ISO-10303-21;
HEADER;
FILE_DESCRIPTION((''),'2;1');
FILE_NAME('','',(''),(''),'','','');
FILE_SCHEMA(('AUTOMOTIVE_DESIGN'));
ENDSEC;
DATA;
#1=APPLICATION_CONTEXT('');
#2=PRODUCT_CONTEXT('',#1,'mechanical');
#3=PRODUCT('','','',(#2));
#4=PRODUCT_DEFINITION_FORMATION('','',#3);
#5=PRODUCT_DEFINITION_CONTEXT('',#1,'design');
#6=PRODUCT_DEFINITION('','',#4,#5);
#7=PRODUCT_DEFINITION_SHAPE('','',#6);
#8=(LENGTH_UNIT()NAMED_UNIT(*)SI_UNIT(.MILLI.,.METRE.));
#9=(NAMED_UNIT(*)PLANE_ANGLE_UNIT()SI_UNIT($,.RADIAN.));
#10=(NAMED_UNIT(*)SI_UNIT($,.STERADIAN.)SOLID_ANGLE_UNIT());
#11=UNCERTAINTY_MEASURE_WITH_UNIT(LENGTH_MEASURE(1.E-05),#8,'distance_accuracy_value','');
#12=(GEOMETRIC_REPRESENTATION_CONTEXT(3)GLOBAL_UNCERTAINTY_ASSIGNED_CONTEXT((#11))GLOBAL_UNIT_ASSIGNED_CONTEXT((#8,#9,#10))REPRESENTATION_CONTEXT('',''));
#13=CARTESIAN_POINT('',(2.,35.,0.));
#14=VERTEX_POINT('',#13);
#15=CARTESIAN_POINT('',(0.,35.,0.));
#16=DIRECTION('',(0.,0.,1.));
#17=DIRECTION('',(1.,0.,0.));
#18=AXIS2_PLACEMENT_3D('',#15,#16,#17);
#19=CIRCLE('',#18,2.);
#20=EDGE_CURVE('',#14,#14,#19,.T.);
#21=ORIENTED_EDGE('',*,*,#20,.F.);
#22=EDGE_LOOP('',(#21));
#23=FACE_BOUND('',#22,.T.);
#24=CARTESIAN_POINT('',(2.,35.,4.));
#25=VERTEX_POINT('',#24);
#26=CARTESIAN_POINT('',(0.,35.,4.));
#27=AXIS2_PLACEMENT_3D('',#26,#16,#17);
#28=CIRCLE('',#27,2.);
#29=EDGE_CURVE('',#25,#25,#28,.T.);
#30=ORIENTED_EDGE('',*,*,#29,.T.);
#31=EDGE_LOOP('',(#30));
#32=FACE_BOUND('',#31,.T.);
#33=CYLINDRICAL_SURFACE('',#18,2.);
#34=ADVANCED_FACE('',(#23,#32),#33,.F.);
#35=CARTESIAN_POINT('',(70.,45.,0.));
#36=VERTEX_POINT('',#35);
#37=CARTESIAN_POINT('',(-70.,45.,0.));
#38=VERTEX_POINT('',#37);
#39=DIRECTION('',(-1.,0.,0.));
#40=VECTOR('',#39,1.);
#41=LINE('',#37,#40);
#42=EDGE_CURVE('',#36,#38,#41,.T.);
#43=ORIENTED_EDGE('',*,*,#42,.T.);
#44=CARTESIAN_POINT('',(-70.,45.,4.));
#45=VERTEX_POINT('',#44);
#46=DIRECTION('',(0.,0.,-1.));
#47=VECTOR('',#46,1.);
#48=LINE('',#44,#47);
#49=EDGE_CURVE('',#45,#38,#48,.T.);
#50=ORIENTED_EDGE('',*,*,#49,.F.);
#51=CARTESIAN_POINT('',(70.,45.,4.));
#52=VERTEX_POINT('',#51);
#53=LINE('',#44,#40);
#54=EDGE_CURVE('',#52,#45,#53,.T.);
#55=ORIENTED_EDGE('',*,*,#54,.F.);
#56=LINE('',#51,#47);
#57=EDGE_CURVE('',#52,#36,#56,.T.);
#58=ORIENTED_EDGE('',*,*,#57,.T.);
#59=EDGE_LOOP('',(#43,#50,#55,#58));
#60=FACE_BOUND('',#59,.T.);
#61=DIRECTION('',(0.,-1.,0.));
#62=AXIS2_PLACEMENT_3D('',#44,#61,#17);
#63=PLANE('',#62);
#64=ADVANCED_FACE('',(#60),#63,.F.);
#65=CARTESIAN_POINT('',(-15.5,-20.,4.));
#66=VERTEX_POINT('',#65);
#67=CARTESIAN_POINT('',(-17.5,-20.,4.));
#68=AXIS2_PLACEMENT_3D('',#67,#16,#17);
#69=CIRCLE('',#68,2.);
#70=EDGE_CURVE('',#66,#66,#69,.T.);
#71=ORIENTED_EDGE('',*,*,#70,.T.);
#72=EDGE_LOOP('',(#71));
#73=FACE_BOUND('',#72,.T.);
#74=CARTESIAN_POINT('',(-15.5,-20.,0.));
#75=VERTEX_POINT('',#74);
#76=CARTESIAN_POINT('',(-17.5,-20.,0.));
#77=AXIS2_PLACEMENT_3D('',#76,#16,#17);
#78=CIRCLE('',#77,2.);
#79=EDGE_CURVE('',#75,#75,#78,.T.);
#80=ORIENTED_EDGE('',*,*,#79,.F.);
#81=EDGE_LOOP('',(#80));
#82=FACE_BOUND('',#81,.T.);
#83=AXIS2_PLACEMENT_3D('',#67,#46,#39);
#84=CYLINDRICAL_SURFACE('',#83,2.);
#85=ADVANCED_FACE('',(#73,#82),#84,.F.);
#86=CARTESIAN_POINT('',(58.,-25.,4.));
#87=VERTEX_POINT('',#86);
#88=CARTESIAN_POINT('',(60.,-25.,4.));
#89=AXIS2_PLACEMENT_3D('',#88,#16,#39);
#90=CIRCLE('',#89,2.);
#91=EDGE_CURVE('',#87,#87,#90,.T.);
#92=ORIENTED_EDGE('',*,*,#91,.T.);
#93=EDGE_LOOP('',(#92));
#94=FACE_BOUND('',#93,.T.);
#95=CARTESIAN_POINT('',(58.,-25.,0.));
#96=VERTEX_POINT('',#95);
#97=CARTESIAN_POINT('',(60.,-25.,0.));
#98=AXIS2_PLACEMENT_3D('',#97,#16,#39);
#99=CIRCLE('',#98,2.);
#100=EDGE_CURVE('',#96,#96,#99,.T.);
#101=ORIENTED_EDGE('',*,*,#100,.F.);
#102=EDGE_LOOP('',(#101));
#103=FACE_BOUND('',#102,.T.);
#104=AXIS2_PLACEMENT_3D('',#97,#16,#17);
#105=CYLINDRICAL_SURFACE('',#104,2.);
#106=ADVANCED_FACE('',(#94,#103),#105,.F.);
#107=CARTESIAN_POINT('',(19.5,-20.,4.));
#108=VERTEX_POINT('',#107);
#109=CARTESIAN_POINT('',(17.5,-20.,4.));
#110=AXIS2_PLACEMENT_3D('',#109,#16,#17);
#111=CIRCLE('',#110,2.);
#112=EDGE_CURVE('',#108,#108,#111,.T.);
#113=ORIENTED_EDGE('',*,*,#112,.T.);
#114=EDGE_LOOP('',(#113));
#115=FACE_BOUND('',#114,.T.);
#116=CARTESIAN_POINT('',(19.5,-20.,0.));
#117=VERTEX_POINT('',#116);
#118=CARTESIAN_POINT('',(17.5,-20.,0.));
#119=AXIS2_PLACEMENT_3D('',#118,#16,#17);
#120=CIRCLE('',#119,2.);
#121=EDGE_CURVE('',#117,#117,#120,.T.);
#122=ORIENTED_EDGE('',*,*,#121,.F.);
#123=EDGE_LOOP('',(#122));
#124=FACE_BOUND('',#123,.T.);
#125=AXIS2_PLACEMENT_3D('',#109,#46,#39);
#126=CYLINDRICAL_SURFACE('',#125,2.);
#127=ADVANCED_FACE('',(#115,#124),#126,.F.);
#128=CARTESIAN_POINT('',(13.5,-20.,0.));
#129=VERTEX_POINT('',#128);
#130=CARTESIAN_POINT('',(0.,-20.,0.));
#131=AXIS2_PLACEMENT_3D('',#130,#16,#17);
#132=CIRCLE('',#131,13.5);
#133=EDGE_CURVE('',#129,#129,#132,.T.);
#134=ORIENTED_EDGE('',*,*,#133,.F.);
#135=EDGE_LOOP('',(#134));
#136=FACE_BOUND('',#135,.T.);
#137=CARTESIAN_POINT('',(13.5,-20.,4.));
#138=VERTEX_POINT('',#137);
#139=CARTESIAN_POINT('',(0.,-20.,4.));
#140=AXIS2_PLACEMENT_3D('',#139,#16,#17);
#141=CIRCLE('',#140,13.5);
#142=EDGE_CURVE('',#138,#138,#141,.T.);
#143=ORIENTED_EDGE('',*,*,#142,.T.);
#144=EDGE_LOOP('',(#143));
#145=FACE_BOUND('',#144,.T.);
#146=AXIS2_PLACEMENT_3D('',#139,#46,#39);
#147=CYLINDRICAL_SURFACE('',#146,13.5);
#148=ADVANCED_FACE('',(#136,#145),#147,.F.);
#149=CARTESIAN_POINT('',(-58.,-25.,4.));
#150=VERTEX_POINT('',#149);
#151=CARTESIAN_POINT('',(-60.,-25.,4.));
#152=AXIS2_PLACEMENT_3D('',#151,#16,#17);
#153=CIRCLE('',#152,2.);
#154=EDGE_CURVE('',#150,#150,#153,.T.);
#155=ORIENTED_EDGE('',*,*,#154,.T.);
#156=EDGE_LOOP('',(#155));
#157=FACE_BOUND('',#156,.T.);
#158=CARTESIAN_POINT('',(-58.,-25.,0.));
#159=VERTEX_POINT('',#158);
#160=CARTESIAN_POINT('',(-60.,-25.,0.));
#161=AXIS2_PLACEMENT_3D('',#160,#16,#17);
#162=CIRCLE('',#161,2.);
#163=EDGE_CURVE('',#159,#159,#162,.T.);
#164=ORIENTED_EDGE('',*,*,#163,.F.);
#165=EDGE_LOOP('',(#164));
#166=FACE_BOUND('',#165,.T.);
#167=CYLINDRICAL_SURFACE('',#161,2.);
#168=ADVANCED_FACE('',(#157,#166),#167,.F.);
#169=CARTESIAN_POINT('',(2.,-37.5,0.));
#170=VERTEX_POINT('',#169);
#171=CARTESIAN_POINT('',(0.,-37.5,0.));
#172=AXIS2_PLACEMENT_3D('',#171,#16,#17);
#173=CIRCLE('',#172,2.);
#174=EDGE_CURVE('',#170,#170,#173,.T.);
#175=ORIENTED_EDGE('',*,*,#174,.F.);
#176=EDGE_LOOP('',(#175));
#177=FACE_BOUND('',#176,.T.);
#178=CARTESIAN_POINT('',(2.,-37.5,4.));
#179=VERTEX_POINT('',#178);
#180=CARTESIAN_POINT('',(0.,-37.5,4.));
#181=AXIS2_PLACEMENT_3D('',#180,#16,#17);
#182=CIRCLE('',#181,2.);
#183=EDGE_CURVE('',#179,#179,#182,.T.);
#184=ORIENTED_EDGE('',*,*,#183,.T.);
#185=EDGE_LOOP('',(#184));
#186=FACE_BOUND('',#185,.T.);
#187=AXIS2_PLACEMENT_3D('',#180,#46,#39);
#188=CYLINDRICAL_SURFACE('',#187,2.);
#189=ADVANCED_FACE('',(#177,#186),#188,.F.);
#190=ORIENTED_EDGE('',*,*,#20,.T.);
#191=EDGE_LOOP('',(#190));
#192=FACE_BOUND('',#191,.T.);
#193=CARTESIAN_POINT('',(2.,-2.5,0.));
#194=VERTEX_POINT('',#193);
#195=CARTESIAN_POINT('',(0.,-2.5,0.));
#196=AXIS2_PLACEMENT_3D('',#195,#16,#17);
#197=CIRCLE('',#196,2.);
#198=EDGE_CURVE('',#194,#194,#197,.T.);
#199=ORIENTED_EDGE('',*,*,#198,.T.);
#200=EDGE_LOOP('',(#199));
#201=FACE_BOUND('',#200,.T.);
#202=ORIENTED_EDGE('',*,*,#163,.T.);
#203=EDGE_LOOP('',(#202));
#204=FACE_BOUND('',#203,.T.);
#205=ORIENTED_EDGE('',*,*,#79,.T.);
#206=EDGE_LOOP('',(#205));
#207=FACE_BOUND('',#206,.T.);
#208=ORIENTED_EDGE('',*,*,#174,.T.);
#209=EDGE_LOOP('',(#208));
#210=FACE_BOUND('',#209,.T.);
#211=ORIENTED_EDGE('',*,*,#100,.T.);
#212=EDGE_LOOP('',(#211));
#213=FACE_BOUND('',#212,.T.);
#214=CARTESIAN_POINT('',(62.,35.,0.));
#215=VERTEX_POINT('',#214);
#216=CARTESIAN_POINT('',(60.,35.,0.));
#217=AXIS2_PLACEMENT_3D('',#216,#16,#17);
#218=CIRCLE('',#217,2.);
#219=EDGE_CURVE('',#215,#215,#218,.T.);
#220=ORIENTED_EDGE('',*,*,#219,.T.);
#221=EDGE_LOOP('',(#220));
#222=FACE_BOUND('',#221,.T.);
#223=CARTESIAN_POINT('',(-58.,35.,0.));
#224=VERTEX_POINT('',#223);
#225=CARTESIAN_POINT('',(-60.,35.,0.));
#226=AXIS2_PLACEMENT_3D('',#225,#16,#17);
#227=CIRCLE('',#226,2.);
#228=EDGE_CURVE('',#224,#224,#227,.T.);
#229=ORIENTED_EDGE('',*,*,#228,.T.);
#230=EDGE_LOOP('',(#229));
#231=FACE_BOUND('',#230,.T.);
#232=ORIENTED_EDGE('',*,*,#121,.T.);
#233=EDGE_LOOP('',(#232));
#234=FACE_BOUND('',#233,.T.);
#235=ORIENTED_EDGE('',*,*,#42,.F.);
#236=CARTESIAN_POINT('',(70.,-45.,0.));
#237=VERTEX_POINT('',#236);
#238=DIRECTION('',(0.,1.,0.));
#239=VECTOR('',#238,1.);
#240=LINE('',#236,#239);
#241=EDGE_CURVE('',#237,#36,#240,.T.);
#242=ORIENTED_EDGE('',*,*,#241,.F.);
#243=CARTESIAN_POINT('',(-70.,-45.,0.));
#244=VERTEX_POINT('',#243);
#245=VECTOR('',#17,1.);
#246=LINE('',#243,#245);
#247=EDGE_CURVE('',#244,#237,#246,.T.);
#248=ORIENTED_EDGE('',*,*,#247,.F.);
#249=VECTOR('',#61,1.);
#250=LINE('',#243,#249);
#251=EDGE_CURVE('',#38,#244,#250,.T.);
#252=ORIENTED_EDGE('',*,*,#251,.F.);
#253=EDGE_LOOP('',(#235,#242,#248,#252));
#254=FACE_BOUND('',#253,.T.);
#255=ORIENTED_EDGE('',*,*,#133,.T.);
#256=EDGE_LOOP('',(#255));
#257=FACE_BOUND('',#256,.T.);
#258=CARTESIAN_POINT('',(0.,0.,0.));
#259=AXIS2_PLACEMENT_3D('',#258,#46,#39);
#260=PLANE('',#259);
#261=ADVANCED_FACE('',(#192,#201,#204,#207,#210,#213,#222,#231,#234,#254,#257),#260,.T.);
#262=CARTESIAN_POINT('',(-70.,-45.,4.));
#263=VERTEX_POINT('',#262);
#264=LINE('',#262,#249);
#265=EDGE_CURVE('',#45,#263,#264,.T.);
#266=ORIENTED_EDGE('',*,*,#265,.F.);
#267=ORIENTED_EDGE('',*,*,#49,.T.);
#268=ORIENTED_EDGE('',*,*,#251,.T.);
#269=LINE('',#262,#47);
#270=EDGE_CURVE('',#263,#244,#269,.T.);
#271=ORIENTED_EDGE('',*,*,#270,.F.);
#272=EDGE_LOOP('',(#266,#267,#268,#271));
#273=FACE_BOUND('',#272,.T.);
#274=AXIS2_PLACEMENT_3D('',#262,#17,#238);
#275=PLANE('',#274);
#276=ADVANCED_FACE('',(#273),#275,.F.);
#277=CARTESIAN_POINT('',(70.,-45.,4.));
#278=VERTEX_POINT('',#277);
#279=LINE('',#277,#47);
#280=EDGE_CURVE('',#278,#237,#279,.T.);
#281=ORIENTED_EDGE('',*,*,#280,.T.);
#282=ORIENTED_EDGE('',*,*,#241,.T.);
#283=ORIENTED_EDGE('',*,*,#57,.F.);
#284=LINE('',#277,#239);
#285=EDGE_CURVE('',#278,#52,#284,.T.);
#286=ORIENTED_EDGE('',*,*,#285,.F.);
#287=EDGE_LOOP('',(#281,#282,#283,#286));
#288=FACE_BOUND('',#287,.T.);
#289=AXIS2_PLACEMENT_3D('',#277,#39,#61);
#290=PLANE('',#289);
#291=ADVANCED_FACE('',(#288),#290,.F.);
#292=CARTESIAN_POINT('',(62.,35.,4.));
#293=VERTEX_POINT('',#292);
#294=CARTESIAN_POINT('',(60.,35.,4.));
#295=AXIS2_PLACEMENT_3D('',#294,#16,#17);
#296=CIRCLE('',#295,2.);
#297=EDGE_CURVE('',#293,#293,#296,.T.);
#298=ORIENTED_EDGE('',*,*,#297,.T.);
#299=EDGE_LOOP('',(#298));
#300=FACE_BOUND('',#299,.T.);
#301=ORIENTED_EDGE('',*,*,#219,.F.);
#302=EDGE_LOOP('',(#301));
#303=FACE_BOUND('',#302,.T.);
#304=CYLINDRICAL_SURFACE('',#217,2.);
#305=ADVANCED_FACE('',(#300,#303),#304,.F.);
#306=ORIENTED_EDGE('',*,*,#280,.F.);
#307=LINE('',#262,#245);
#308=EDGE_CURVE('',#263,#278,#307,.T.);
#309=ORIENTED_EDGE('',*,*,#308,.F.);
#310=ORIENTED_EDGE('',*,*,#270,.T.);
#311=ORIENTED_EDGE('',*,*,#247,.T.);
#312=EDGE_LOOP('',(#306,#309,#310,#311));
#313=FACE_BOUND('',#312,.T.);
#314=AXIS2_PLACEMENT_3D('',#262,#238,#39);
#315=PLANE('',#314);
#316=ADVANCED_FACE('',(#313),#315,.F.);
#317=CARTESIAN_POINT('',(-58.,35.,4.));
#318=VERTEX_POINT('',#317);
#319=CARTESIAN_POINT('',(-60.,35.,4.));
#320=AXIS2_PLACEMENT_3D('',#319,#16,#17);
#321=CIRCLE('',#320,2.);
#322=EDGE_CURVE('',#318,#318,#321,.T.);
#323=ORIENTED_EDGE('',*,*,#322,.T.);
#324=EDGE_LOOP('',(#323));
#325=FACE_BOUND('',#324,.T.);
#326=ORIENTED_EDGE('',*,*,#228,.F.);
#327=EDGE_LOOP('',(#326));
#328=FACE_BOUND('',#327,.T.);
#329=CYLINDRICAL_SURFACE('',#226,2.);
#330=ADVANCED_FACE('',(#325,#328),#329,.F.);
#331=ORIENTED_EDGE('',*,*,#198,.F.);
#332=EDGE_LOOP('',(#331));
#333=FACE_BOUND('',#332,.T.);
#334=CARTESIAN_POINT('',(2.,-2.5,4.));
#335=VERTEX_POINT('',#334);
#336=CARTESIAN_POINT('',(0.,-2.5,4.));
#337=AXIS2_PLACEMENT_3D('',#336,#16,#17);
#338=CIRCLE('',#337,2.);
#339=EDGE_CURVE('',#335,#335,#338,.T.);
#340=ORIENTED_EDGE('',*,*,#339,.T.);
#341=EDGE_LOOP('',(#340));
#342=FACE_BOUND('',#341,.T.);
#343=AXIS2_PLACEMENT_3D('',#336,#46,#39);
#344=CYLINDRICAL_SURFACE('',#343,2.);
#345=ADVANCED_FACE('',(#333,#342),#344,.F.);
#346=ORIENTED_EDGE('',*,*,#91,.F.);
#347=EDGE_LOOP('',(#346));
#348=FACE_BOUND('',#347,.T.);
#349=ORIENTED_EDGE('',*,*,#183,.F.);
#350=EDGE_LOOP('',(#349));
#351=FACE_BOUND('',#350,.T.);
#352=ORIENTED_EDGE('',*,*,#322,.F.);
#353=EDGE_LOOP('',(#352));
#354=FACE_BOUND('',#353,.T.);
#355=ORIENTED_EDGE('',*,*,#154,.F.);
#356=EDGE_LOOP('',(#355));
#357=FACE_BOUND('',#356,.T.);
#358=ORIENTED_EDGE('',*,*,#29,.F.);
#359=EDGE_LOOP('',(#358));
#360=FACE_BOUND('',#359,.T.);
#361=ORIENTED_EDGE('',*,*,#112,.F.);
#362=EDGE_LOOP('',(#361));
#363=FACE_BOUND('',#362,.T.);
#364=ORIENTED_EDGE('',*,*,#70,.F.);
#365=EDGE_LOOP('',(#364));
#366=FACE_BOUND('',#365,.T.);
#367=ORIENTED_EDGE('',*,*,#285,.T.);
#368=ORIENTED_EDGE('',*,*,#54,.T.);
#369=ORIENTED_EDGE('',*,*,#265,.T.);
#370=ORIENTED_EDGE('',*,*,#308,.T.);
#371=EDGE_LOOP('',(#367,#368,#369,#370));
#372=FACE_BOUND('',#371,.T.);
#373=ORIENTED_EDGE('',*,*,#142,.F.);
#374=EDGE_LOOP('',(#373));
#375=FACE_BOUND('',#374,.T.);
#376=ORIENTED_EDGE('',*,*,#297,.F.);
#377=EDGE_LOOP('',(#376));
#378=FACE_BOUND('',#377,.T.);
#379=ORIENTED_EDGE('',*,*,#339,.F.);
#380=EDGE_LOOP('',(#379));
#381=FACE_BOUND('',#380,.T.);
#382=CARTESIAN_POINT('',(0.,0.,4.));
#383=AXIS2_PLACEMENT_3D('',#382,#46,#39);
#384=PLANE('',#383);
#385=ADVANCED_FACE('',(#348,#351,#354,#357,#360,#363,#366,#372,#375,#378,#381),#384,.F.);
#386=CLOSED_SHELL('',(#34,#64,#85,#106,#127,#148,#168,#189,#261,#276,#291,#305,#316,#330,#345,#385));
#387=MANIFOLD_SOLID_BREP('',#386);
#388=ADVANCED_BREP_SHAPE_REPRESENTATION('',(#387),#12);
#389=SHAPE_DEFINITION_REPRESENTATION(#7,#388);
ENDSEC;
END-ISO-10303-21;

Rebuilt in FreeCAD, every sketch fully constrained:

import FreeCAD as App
import Part
import Sketcher
from FreeCAD import Vector
Q = App.Units.Quantity


def add_polygon(sketch, points):
    """Adds a closed chain of lines whose ends are joined by coincident constraints."""
    first, n = sketch.GeometryCount, len(points)
    for a, b in zip(points, points[1:] + points[:1]):
        sketch.addGeometry(Part.LineSegment(App.Vector(*a, 0), App.Vector(*b, 0)), False)
    for i in range(n):
        sketch.addConstraint(Sketcher.Constraint("Coincident", first + i, 2, first + (i + 1) % n, 1))

doc = App.newDocument("Part")
body = doc.addObject("PartDesign::Body", "Body")

sketch1 = body.newObject("Sketcher::SketchObject", "Sketch")
sketch1.AttachmentSupport = (doc.getObject("XY_Plane"), [""])
sketch1.MapMode = "FlatFace"
add_polygon(sketch1, [(-70, 45), (-70, -45), (70, -45), (70, 45)])
sketch1.addGeometry(Part.Circle(Vector(0, -37.5, 0), Vector(0, 0, 1), 2), False)
sketch1.addGeometry(Part.Circle(Vector(-17.5, -20, 0), Vector(0, 0, 1), 2), False)
sketch1.addGeometry(Part.Circle(Vector(0, -20, 0), Vector(0, 0, 1), 13.5), False)
sketch1.addGeometry(Part.Circle(Vector(17.5, -20, 0), Vector(0, 0, 1), 2), False)
sketch1.addGeometry(Part.Circle(Vector(0, -2.5, 0), Vector(0, 0, 1), 2), False)
sketch1.addConstraint([
    Sketcher.Constraint("Vertical", 0),
    Sketcher.Constraint("Horizontal", 1),
    Sketcher.Constraint("Vertical", 2),
    Sketcher.Constraint("Horizontal", 3),
    Sketcher.Constraint("Equal", 4, 5),
    Sketcher.Constraint("Equal", 5, 7),
    Sketcher.Constraint("Equal", 7, 8),
    Sketcher.Constraint("Symmetric", 0, 2, 2, 2, -1, 1),
    Sketcher.Constraint("Symmetric", 5, 3, 7, 3, -2),
    Sketcher.Constraint("PointOnObject", 4, 3, -2),
    Sketcher.Constraint("PointOnObject", 6, 3, -2),
    Sketcher.Constraint("PointOnObject", 8, 3, -2),
    Sketcher.Constraint("Horizontal", 5, 3, 6, 3),
    Sketcher.Constraint("Diameter", 4, Q("4 mm")),
    Sketcher.Constraint("Diameter", 6, Q("27 mm")),
    Sketcher.Constraint("DistanceX", 1, 1, 1, 2, Q("140 mm")),
    Sketcher.Constraint("DistanceY", 0, 2, 0, 1, Q("90 mm")),
    Sketcher.Constraint("DistanceY", 5, 3, -1, 1, Q("20 mm")),
    Sketcher.Constraint("DistanceX", 5, 3, 7, 3, Q("35 mm")),
    Sketcher.Constraint("DistanceY", 4, 3, 8, 3, Q("35 mm")),
    Sketcher.Constraint("DistanceY", 4, 3, -1, 1, Q("37.5 mm")),
])
pad1 = body.newObject("PartDesign::Pad", "Pad")
pad1.Profile = sketch1
pad1.Length = 4

sketch2 = body.newObject("Sketcher::SketchObject", "Sketch001")
sketch2.AttachmentSupport = (doc.getObject("XY_Plane"), [""])
sketch2.MapMode = "FlatFace"
sketch2.AttachmentOffset = App.Placement(Vector(0, 0, 4), App.Rotation())
sketch2.addGeometry([
    Part.Circle(Vector(0, 35, 0), Vector(0, 0, 1), 2),
    Part.Circle(Vector(-60, 35, 0), Vector(0, 0, 1), 2),
    Part.Circle(Vector(60, 35, 0), Vector(0, 0, 1), 2),
], False)
sketch2.addConstraint([
    Sketcher.Constraint("Equal", 0, 1),
    Sketcher.Constraint("Equal", 1, 2),
    Sketcher.Constraint("Symmetric", 1, 3, 2, 3, -2),
    Sketcher.Constraint("PointOnObject", 0, 3, -2),
    Sketcher.Constraint("Horizontal", 0, 3, 1, 3),
    Sketcher.Constraint("Diameter", 0, Q("4 mm")),
    Sketcher.Constraint("DistanceY", -1, 1, 0, 3, Q("35 mm")),
    Sketcher.Constraint("DistanceX", 1, 3, -1, 1, Q("60 mm")),
])
pocket1 = body.newObject("PartDesign::Pocket", "Pocket")
pocket1.Profile = sketch2
pocket1.Type = "ThroughAll"

sketch3 = body.newObject("Sketcher::SketchObject", "Sketch002")
sketch3.AttachmentSupport = (doc.getObject("XY_Plane"), [""])
sketch3.MapMode = "FlatFace"
sketch3.AttachmentOffset = App.Placement(Vector(0, 0, 4), App.Rotation())
sketch3.addGeometry([
    Part.Circle(Vector(-60, -25, 0), Vector(0, 0, 1), 2),
    Part.Circle(Vector(-60, -85, 0), Vector(0, 0, 1), 2),
    Part.Circle(Vector(60, -85, 0), Vector(0, 0, 1), 2),
    Part.Circle(Vector(60, -25, 0), Vector(0, 0, 1), 2),
], False)
sketch3.addConstraint([
    Sketcher.Constraint("Equal", 0, 1),
    Sketcher.Constraint("Equal", 1, 2),
    Sketcher.Constraint("Equal", 2, 3),
    Sketcher.Constraint("Symmetric", 1, 3, 2, 3, -2),
    Sketcher.Constraint("Symmetric", 0, 3, 3, 3, -2),
    Sketcher.Constraint("Vertical", 0, 3, 1, 3),
    Sketcher.Constraint("Diameter", 0, Q("4 mm")),
    Sketcher.Constraint("DistanceX", 0, 3, -1, 1, Q("60 mm")),
    Sketcher.Constraint("DistanceY", 0, 3, -1, 1, Q("25 mm")),
    Sketcher.Constraint("DistanceY", 1, 3, -1, 1, Q("85 mm")),
])
pocket2 = body.newObject("PartDesign::Pocket", "Pocket001")
pocket2.Profile = sketch3
pocket2.Type = "ThroughAll"

doc.recompute()
